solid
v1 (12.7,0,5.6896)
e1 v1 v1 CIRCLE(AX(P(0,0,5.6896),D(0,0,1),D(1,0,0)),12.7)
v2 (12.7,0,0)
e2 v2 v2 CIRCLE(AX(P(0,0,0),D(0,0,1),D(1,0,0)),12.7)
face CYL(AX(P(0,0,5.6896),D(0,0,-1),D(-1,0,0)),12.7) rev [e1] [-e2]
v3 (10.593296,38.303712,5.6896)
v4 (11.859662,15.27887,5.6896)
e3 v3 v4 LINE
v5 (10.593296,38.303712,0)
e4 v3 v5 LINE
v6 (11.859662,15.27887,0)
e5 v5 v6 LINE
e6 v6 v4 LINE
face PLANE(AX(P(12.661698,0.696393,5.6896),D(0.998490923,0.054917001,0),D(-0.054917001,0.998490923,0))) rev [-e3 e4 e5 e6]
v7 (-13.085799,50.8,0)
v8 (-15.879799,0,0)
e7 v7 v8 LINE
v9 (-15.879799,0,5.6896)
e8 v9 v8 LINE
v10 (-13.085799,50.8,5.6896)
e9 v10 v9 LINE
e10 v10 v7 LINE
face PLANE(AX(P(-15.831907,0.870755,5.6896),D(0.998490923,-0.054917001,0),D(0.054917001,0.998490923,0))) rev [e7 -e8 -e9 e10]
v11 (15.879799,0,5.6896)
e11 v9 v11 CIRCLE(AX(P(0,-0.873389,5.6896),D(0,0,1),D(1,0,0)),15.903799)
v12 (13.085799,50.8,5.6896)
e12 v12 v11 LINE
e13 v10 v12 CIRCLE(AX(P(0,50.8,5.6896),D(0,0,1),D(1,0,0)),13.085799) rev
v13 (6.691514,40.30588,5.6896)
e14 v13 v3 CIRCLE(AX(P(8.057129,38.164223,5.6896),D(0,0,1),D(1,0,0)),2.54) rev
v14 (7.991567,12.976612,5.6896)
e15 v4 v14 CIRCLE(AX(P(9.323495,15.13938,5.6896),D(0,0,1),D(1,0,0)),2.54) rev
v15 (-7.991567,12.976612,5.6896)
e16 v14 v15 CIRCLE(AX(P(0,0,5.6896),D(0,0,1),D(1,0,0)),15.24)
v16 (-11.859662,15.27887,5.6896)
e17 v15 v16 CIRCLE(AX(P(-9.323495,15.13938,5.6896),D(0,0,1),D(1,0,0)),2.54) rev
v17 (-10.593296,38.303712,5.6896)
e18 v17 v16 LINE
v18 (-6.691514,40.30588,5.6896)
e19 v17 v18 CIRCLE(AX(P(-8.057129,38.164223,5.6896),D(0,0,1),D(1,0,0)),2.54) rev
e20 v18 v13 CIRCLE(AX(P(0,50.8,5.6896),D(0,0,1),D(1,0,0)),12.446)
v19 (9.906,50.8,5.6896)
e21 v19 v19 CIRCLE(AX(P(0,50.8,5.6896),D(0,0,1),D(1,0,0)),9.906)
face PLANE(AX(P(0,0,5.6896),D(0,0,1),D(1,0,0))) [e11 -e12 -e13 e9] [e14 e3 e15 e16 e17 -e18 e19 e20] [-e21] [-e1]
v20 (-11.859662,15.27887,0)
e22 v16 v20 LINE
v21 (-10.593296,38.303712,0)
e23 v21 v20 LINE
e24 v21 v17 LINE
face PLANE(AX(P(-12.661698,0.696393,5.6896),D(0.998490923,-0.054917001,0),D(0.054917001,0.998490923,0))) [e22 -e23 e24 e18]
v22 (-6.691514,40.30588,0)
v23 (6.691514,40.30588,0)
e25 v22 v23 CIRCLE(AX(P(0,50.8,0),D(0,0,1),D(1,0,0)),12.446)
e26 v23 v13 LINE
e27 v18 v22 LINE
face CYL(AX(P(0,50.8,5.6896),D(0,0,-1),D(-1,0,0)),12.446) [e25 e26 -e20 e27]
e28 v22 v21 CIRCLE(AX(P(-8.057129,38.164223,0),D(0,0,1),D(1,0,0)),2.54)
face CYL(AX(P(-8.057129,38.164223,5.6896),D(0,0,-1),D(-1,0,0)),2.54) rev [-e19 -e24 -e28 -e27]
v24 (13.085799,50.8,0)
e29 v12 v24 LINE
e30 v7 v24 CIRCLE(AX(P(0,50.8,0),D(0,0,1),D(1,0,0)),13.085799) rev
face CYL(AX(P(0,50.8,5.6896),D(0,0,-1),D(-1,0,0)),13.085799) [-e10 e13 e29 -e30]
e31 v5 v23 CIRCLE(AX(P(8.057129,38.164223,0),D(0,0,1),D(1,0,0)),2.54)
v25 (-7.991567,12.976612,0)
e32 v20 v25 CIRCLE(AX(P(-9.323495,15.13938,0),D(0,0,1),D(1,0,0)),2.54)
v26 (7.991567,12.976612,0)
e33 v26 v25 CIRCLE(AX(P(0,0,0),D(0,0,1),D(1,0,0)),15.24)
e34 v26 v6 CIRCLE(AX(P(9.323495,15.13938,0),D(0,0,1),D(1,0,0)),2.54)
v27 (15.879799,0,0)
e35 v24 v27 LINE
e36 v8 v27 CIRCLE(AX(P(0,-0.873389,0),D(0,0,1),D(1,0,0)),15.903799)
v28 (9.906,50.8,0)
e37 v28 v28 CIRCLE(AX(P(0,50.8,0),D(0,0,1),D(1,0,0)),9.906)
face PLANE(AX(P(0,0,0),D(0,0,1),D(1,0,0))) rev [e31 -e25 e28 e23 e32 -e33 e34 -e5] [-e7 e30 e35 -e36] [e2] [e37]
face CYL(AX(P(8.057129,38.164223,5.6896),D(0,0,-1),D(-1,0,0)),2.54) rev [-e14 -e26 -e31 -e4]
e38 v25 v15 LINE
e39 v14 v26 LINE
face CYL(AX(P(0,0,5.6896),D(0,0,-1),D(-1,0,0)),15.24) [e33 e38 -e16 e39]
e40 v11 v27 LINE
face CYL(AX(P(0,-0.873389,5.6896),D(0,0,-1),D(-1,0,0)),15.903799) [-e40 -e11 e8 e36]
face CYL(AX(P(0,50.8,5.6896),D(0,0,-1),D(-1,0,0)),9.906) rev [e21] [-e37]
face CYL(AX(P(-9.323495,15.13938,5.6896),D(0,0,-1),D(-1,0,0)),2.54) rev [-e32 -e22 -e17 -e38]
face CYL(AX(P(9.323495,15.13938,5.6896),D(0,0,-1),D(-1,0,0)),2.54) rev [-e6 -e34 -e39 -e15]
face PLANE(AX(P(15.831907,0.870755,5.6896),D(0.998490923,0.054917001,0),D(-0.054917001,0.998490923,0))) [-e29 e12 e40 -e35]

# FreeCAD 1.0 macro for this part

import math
import FreeCAD as App
import Part
import Sketcher
Q = App.Units.Quantity


def edges_at(feature, points):
    """Names of the edges that pass closest to the given points."""
    edges = feature.Shape.Edges
    near = lambda p: min(range(len(edges)), key=lambda i: edges[i].distToShape(Part.Vertex(*p))[0])
    return sorted({f"Edge{near(p) + 1}" for p in points})

doc = App.newDocument("Part")
body = doc.addObject("PartDesign::Body", "Body")

sketch1 = body.newObject("Sketcher::SketchObject", "Sketch")
sketch1.AttachmentSupport = (doc.getObject("XY_Plane"), [""])
sketch1.MapMode = "FlatFace"
sketch1.addGeometry(Part.ArcOfCircle(Part.Circle(App.Vector(0, 51, 0), App.Vector(0, 0, 1), 13), math.radians(0), math.radians(180)), False)
sketch1.addGeometry(Part.LineSegment(App.Vector(-13, 51, 0), App.Vector(-16, 0, 0)), False)
sketch1.addGeometry(Part.ArcOfCircle(Part.Circle(App.Vector(0, -1, 0), App.Vector(0, 0, 1), 16), math.radians(177), math.radians(363)), False)
sketch1.addGeometry(Part.LineSegment(App.Vector(16, 0, 0), App.Vector(13, 51, 0)), False)
sketch1.addGeometry(Part.Circle(App.Vector(0, 0, 0), App.Vector(0, 0, 1), 13), False)
sketch1.addGeometry(Part.ArcOfCircle(Part.Circle(App.Vector(0, 0, 0), App.Vector(0, 0, 1), 15), math.radians(37), math.radians(143)), False)
sketch1.addGeometry(Part.LineSegment(App.Vector(-12, 9, 0), App.Vector(-10, 44, 0)), False)
sketch1.addGeometry(Part.ArcOfCircle(Part.Circle(App.Vector(0, 51, 0), App.Vector(0, 0, 1), 12), math.radians(-146), math.radians(-34)), False)
sketch1.addGeometry(Part.LineSegment(App.Vector(10, 44, 0), App.Vector(12, 9, 0)), False)
sketch1.addGeometry(Part.Circle(App.Vector(0, 51, 0), App.Vector(0, 0, 1), 10), False)
sketch1.addConstraint(Sketcher.Constraint("Coincident", 0, 2, 1, 1))
sketch1.addConstraint(Sketcher.Constraint("Tangent", 1, 2, 2, 1))
sketch1.addConstraint(Sketcher.Constraint("Tangent", 2, 2, 3, 1))
sketch1.addConstraint(Sketcher.Constraint("Coincident", 3, 2, 0, 1))
sketch1.addConstraint(Sketcher.Constraint("Coincident", 5, 2, 6, 1))
sketch1.addConstraint(Sketcher.Constraint("Coincident", 6, 2, 7, 1))
sketch1.addConstraint(Sketcher.Constraint("Coincident", 7, 2, 8, 1))
sketch1.addConstraint(Sketcher.Constraint("Coincident", 8, 2, 5, 1))
sketch1.addConstraint(Sketcher.Constraint("Coincident", 4, 3, -1, 1))
sketch1.addConstraint(Sketcher.Constraint("Coincident", 5, 3, -1, 1))
sketch1.addConstraint(Sketcher.Constraint("Coincident", 7, 3, 0, 3))
sketch1.addConstraint(Sketcher.Constraint("Coincident", 9, 3, 0, 3))
sketch1.addConstraint(Sketcher.Constraint("Symmetric", 1, 2, 2, 2, -1, 1))
sketch1.addConstraint(Sketcher.Constraint("Symmetric", 0, 2, 3, 2, -2))
sketch1.addConstraint(Sketcher.Constraint("Parallel", 1, 6))
sketch1.addConstraint(Sketcher.Constraint("Parallel", 3, 8))
sketch1.addConstraint(Sketcher.Constraint("Horizontal", 9, 3, 0, 2))
sketch1.addConstraint(Sketcher.Constraint("Horizontal", 6, 2, 7, 2))
sketch1.addConstraint(Sketcher.Constraint("Diameter", 4, Q("1 in")))
sketch1.addConstraint(Sketcher.Constraint("Radius", 5, Q("0.6 in")))
sketch1.addConstraint(Sketcher.Constraint("Diameter", 9, Q("0.78 in")))
sketch1.addConstraint(Sketcher.Constraint("Radius", 7, Q("0.49 in")))
sketch1.addConstraint(Sketcher.Constraint("DistanceY", -1, 1, 0, 3, Q("2 in")))
sketch1.addConstraint(Sketcher.Constraint("Radius", 0, 13.085799))
sketch1.addConstraint(Sketcher.Constraint("Radius", 2, 15.903799))
sketch1.addConstraint(Sketcher.Constraint("Distance", 6, 34.71582))
pad1 = body.newObject("PartDesign::Pad", "Pad")
pad1.Profile = sketch1
pad1.Length = Q("0.224 in")
doc.recompute()

fillet = body.newObject("PartDesign::Fillet", "Fillet")
fillet.Base = (pad1, edges_at(pad1, [
    (-10.291, 43.8, 2.845),
    (-12.197, 9.137, 2.845),
    (12.197, 9.137, 2.845),
    (10.291, 43.8, 2.845),
]))
fillet.Radius = Q("0.1 in")

doc.recompute()
